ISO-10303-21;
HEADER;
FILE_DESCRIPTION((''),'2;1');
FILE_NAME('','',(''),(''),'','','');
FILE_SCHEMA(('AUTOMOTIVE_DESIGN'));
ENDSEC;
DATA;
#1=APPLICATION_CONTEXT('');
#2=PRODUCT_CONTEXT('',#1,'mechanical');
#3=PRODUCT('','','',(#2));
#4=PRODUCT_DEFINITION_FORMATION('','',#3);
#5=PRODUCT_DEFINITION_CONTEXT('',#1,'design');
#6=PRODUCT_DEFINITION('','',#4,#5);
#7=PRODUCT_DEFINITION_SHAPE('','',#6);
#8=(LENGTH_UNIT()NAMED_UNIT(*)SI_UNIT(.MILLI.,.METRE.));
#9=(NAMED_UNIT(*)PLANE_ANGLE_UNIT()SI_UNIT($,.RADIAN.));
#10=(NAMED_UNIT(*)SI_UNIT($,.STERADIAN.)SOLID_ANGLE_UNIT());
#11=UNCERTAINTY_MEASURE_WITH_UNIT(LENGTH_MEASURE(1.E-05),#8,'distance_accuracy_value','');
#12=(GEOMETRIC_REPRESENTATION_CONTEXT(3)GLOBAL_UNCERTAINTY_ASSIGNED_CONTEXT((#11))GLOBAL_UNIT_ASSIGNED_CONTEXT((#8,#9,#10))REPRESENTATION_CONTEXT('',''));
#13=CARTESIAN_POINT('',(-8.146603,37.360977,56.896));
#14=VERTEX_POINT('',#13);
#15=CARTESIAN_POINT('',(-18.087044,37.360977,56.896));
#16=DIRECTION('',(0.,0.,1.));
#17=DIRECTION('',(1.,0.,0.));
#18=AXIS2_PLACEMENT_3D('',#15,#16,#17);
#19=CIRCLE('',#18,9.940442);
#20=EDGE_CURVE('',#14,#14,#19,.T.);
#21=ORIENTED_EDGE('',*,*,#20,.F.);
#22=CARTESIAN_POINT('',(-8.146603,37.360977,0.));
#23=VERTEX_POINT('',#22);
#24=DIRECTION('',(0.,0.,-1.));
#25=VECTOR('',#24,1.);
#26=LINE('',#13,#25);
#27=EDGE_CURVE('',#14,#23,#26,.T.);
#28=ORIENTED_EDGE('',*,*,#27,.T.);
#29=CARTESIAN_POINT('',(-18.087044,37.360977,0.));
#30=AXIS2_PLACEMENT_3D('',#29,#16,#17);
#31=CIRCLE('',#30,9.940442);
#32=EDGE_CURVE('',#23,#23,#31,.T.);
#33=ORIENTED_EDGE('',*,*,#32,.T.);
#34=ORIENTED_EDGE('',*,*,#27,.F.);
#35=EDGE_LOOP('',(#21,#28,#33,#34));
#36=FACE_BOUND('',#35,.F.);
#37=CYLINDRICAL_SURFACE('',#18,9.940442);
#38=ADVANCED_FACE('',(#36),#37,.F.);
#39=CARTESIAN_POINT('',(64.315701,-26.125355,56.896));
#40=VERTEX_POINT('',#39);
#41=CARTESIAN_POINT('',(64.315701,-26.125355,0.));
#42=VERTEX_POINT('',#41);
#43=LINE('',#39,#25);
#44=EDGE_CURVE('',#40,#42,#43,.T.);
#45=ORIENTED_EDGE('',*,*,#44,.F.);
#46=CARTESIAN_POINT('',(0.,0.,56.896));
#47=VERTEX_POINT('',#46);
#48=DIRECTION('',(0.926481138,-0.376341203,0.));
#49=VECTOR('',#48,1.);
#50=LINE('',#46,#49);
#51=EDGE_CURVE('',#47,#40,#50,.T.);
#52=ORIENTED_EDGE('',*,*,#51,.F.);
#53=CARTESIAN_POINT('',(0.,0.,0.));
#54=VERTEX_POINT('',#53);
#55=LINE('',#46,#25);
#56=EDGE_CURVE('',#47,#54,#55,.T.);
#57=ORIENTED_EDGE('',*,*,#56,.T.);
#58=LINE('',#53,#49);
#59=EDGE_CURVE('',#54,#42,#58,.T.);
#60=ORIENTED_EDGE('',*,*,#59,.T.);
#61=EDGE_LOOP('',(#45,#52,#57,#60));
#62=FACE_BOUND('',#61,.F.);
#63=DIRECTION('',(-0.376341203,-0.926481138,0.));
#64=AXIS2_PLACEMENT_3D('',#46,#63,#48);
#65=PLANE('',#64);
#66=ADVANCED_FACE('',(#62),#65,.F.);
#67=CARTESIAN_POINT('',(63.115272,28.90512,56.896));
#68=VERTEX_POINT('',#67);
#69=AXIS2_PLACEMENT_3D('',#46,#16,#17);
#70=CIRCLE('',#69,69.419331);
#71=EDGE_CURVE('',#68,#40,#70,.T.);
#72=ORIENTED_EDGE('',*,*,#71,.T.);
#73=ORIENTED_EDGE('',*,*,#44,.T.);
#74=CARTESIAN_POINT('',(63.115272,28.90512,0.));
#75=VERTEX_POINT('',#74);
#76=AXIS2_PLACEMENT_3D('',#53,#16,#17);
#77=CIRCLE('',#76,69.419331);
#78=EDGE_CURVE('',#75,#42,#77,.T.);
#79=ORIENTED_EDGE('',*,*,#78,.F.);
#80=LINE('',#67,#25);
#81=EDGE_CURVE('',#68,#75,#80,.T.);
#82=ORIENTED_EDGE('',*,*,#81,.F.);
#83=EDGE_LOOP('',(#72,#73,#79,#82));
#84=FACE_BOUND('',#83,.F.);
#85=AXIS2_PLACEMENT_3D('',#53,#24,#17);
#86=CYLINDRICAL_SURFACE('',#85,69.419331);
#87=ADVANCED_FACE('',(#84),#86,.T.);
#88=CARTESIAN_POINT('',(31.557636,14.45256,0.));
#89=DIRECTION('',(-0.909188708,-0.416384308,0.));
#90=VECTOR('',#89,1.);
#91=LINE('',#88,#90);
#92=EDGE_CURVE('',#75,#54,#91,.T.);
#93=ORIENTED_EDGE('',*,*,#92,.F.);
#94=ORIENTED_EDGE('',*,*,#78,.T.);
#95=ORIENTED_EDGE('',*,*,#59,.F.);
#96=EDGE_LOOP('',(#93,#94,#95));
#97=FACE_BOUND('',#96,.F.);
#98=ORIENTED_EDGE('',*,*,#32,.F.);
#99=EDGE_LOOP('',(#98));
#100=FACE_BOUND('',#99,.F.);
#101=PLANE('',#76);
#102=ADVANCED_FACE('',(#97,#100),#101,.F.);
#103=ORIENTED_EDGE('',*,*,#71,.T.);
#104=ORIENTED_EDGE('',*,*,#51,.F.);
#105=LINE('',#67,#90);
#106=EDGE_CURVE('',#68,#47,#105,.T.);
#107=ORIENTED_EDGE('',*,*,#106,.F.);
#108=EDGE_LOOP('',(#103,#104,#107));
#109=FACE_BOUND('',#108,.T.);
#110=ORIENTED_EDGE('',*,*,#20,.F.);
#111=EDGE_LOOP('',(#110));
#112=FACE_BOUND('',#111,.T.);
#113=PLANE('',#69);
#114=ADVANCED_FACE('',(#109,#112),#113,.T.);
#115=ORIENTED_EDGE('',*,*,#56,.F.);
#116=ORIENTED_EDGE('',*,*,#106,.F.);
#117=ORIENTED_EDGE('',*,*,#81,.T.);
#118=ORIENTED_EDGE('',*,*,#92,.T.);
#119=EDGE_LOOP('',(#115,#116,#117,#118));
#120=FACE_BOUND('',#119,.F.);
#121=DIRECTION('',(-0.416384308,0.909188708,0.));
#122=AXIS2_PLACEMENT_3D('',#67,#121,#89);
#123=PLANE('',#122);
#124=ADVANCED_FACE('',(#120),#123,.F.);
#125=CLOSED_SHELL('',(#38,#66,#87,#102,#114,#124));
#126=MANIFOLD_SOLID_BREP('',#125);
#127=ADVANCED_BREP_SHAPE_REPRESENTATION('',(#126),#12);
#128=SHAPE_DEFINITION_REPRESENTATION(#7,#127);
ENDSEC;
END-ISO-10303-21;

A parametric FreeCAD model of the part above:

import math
import FreeCAD as App
import Part
import Sketcher

V = App.Vector
Q = App.Units.Quantity

doc = App.newDocument("Part")
body = doc.addObject("PartDesign::Body", "Body")

# Sketch on XY plane
sketch1 = body.newObject("Sketcher::SketchObject", "Sketch")
sketch1.AttachmentSupport = (doc.getObject("XY_Plane"), [""])
sketch1.MapMode = "FlatFace"
sketch1.addGeometry(Part.Circle(V(0, 0, 0), V(0, 0, 1), 69), False)
sketch1.addConstraint(Sketcher.Constraint("Coincident", 0, 3, -1, 1))
sketch1.addConstraint(Sketcher.Constraint("Diameter", 0, 138.838662))
pad1 = body.newObject("PartDesign::Pad", "Pad")
pad1.Profile = sketch1
pad1.Length = Q("2.24 in")

# Sketch on XY plane
sketch2 = body.newObject("Sketcher::SketchObject", "Sketch001")
sketch2.AttachmentSupport = (doc.getObject("XY_Plane"), [""])
sketch2.MapMode = "FlatFace"
sketch2.AttachmentOffset = App.Placement(V(0, 0, 2.24 * 25.4), App.Rotation())
sketch2.addGeometry(Part.LineSegment(V(63, 29, 0), V(0, 0, 0)), False)
sketch2.addGeometry(Part.LineSegment(V(0, 0, 0), V(64, -26, 0)), False)
sketch2.addGeometry(Part.ArcOfCircle(Part.Circle(V(0, 0, 0), V(0, 0, 1), 69), math.radians(-22), math.radians(0)), False)
sketch2.addGeometry(Part.ArcOfCircle(Part.Circle(V(0, 0, 0), V(0, 0, 1), 69), math.radians(0), math.radians(25)), False)
sketch2.addGeometry(Part.Circle(V(-18, 37, 0), V(0, 0, 1), 10), False)
sketch2.addConstraint(Sketcher.Constraint("Coincident", 0, 2, 1, 1))
sketch2.addConstraint(Sketcher.Constraint("Coincident", 1, 2, 2, 1))
sketch2.addConstraint(Sketcher.Constraint("Tangent", 2, 2, 3, 1))
sketch2.addConstraint(Sketcher.Constraint("Coincident", 3, 2, 0, 1))
sketch2.addConstraint(Sketcher.Constraint("Coincident", 2, 3, -1, 1))
sketch2.addConstraint(Sketcher.Constraint("Coincident", 0, 2, -1, 1))
sketch2.addConstraint(Sketcher.Constraint("Equal", 2, 3))
sketch2.addConstraint(Sketcher.Constraint("PointOnObject", 2, 2, -1))
sketch2.addConstraint(Sketcher.Constraint("Radius", 2, 69.419331))
sketch2.addConstraint(Sketcher.Constraint("Diameter", 4, 19.880883))
sketch2.addConstraint(Sketcher.Constraint("DistanceX", -1, 1, 1, 2, 64.315701))
sketch2.addConstraint(Sketcher.Constraint("DistanceX", -1, 1, 3, 2, 63.115272))
sketch2.addConstraint(Sketcher.Constraint("DistanceY", 1, 2, 4, 3, 63.486332))
sketch2.addConstraint(Sketcher.Constraint("DistanceX", 4, 3, -1, 1, 18.087044))
pocket1 = body.newObject("PartDesign::Pocket", "Pocket")
pocket1.Profile = sketch2
pocket1.Type = "ThroughAll"

doc.recompute()
